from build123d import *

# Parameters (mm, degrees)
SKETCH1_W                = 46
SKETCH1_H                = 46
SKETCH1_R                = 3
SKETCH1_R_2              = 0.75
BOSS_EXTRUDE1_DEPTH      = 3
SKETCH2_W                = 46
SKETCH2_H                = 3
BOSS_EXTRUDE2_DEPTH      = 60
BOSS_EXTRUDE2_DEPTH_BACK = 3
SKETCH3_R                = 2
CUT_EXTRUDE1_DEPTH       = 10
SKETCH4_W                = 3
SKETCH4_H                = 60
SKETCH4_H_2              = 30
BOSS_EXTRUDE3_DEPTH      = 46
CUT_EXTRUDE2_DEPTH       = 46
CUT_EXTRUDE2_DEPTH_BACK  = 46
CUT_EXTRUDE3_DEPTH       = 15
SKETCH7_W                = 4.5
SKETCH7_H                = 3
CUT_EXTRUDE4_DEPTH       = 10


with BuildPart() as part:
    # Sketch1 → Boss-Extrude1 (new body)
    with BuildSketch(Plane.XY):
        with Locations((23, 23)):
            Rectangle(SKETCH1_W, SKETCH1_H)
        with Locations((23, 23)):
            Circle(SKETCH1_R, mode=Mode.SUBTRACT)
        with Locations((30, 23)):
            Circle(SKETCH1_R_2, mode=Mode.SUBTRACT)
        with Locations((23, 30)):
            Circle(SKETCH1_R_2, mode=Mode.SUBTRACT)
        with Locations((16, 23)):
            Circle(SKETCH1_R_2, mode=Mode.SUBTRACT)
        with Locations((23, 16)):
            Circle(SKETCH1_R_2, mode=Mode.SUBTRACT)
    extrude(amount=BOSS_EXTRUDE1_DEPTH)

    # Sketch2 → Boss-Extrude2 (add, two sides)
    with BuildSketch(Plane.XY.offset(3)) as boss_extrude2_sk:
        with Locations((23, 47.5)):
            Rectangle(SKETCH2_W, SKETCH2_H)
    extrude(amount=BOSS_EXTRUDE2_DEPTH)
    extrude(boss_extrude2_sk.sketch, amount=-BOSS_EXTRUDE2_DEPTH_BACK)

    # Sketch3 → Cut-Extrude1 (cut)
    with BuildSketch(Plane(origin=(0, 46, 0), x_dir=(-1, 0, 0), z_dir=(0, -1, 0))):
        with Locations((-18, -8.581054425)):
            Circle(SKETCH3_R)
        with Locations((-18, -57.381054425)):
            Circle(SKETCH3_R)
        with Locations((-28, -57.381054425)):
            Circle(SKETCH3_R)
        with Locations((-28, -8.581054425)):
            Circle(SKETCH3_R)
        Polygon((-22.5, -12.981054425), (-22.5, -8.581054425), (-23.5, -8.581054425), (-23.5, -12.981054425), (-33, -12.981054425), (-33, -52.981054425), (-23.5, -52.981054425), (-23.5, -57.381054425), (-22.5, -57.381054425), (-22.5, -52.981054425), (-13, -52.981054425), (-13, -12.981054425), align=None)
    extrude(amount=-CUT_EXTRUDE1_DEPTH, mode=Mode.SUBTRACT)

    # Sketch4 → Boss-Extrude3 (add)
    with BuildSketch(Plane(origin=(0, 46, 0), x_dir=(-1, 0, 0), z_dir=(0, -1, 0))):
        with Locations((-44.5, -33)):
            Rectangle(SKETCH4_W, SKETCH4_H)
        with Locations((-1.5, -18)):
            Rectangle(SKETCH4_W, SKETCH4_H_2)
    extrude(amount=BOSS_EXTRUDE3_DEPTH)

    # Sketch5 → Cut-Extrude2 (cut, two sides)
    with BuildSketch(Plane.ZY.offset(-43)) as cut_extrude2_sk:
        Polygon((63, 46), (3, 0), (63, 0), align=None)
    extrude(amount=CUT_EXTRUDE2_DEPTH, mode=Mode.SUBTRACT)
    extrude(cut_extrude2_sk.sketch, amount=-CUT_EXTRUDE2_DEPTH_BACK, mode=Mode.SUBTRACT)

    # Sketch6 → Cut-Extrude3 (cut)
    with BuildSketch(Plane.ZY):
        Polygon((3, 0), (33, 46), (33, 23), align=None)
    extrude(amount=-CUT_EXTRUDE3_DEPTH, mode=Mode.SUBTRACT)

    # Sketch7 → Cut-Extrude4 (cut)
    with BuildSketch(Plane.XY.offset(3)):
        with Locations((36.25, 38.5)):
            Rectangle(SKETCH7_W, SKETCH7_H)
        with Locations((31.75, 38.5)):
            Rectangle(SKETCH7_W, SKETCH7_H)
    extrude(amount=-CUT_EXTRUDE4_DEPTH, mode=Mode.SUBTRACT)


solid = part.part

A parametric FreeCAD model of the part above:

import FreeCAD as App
import Part
import Sketcher

V = App.Vector


def add_polygon(sketch, points):
    """Adds a closed chain of lines whose ends are joined by coincident constraints."""
    first, n = sketch.GeometryCount, len(points)
    for a, b in zip(points, points[1:] + points[:1]):
        sketch.addGeometry(Part.LineSegment(App.Vector(*a, 0), App.Vector(*b, 0)), False)
    for i in range(n):
        sketch.addConstraint(Sketcher.Constraint("Coincident", first + i, 2, first + (i + 1) % n, 1))

doc = App.newDocument("Part")
body = doc.addObject("PartDesign::Body", "Body")

# Sketch on XY plane
sketch1 = doc.addObject("Sketcher::SketchObject", "Sketch")
body.addObject(sketch1)
sketch1.AttachmentSupport = (doc.XY_Plane, [""])
sketch1.MapMode = "FlatFace"
add_polygon(sketch1, [(0, 46), (0, 0), (46, 0), (46, 46)])  # lines 0-3
sketch1.addGeometry(Part.Circle(V(23, 16, 0), V(0, 0, 1), 0.8), False)  # 4
sketch1.addGeometry(Part.Circle(V(16, 23, 0), V(0, 0, 1), 0.8), False)  # 5
sketch1.addGeometry(Part.Circle(V(23, 23, 0), V(0, 0, 1), 3), False)  # 6
sketch1.addGeometry(Part.Circle(V(30, 23, 0), V(0, 0, 1), 0.8), False)  # 7
sketch1.addGeometry(Part.Circle(V(23, 30, 0), V(0, 0, 1), 0.8), False)  # 8
sketch1.addConstraint(Sketcher.Constraint("Vertical", 0))
sketch1.addConstraint(Sketcher.Constraint("Horizontal", 1))
sketch1.addConstraint(Sketcher.Constraint("Vertical", 2))
sketch1.addConstraint(Sketcher.Constraint("Horizontal", 3))
sketch1.addConstraint(Sketcher.Constraint("Coincident", 0, 2, -1, 1))
sketch1.addConstraint(Sketcher.Constraint("Equal", 4, 5))
sketch1.addConstraint(Sketcher.Constraint("Equal", 5, 7))
sketch1.addConstraint(Sketcher.Constraint("Equal", 7, 8))
sketch1.addConstraint(Sketcher.Constraint("Horizontal", 5, 3, 6, 3))
sketch1.addConstraint(Sketcher.Constraint("Horizontal", 6, 3, 7, 3))
sketch1.addConstraint(Sketcher.Constraint("Vertical", 4, 3, 6, 3))
sketch1.addConstraint(Sketcher.Constraint("Vertical", 6, 3, 8, 3))
sketch1.addConstraint(Sketcher.Constraint("Equal", 3, 0))
sketch1.addConstraint(Sketcher.Constraint("Diameter", 6, 6.0))
sketch1.addConstraint(Sketcher.Constraint("Diameter", 4, 1.5))
sketch1.addConstraint(Sketcher.Constraint("DistanceX", 1, 1, 1, 2, 46.0))
sketch1.addConstraint(Sketcher.Constraint("DistanceX", -1, 1, 4, 3, 23.0))
sketch1.addConstraint(Sketcher.Constraint("DistanceY", -1, 1, 4, 3, 16.0))
sketch1.addConstraint(Sketcher.Constraint("DistanceX", -1, 1, 5, 3, 16.0))
sketch1.addConstraint(Sketcher.Constraint("DistanceY", -1, 1, 5, 3, 23.0))
sketch1.addConstraint(Sketcher.Constraint("DistanceX", -1, 1, 7, 3, 30.0))
sketch1.addConstraint(Sketcher.Constraint("DistanceY", -1, 1, 8, 3, 30.0))
pad1 = doc.addObject("PartDesign::Pad", "Pad")
body.addObject(pad1)
pad1.Profile = sketch1
pad1.Length = 3

# Sketch on XY plane
sketch2 = doc.addObject("Sketcher::SketchObject", "Sketch001")
body.addObject(sketch2)
sketch2.AttachmentSupport = (doc.XY_Plane, [""])
sketch2.MapMode = "FlatFace"
sketch2.AttachmentOffset = App.Placement(V(0, 0, 3), App.Rotation())
add_polygon(sketch2, [(0, 49), (0, 46), (46, 46), (46, 49)])  # lines 0-3
sketch2.addConstraint(Sketcher.Constraint("Vertical", 0))
sketch2.addConstraint(Sketcher.Constraint("Horizontal", 1))
sketch2.addConstraint(Sketcher.Constraint("Vertical", 2))
sketch2.addConstraint(Sketcher.Constraint("Horizontal", 3))
sketch2.addConstraint(Sketcher.Constraint("PointOnObject", 0, 2, -2))
sketch2.addConstraint(Sketcher.Constraint("DistanceX", 1, 1, 1, 2, 46.0))
sketch2.addConstraint(Sketcher.Constraint("DistanceY", 0, 2, 0, 1, 3.0))
sketch2.addConstraint(Sketcher.Constraint("DistanceY", -1, 1, 0, 2, 46.0))
pad2 = doc.addObject("PartDesign::Pad", "Pad001")
body.addObject(pad2)
pad2.Profile = sketch2
pad2.Type = "TwoLengths"
pad2.Length = 60
pad2.Length2 = 3

# Sketch on XZ plane
sketch3 = doc.addObject("Sketcher::SketchObject", "Sketch002")
body.addObject(sketch3)
sketch3.AttachmentSupport = (doc.XZ_Plane, [""])
sketch3.MapMode = "FlatFace"
sketch3.AttachmentOffset = App.Placement(V(0, 0, -46), App.Rotation())
sketch3.addGeometry(Part.Circle(V(18, 8.6, 0), V(0, 0, 1), 2), False)  # 0
sketch3.addGeometry(Part.Circle(V(18, 57.4, 0), V(0, 0, 1), 2), False)  # 1
sketch3.addGeometry(Part.Circle(V(28, 57.4, 0), V(0, 0, 1), 2), False)  # 2
sketch3.addGeometry(Part.Circle(V(28, 8.6, 0), V(0, 0, 1), 2), False)  # 3
add_polygon(sketch3, [(22.5, 13), (22.5, 8.6), (23.5, 8.6), (23.5, 13), (33, 13), (33, 53), (23.5, 53), (23.5, 57.4), (22.5, 57.4), (22.5, 53), (13, 53), (13, 13)])  # lines 4-15
sketch3.addConstraint(Sketcher.Constraint("Vertical", 4))
sketch3.addConstraint(Sketcher.Constraint("Horizontal", 5))
sketch3.addConstraint(Sketcher.Constraint("Vertical", 6))
sketch3.addConstraint(Sketcher.Constraint("Horizontal", 7))
sketch3.addConstraint(Sketcher.Constraint("Vertical", 8))
sketch3.addConstraint(Sketcher.Constraint("Horizontal", 9))
sketch3.addConstraint(Sketcher.Constraint("Vertical", 10))
sketch3.addConstraint(Sketcher.Constraint("Horizontal", 11))
sketch3.addConstraint(Sketcher.Constraint("Vertical", 12))
sketch3.addConstraint(Sketcher.Constraint("Horizontal", 13))
sketch3.addConstraint(Sketcher.Constraint("Vertical", 14))
sketch3.addConstraint(Sketcher.Constraint("Horizontal", 15))
sketch3.addConstraint(Sketcher.Constraint("Equal", 0, 1))
sketch3.addConstraint(Sketcher.Constraint("Equal", 1, 2))
sketch3.addConstraint(Sketcher.Constraint("Equal", 2, 3))
sketch3.addConstraint(Sketcher.Constraint("Horizontal", 1, 3, 2, 3))
sketch3.addConstraint(Sketcher.Constraint("Horizontal", 0, 3, 3, 3))
sketch3.addConstraint(Sketcher.Constraint("Horizontal", 3, 3, 4, 2))
sketch3.addConstraint(Sketcher.Constraint("Horizontal", 2, 3, 10, 2))
sketch3.addConstraint(Sketcher.Constraint("Horizontal", 9, 2, 12, 2))
sketch3.addConstraint(Sketcher.Constraint("Horizontal", 7, 2, 14, 2))
sketch3.addConstraint(Sketcher.Constraint("Vertical", 0, 3, 1, 3))
sketch3.addConstraint(Sketcher.Constraint("Vertical", 2, 3, 3, 3))
sketch3.addConstraint(Sketcher.Constraint("Vertical", 6, 2, 9, 2))
sketch3.addConstraint(Sketcher.Constraint("Vertical", 4, 2, 11, 2))
sketch3.addConstraint(Sketcher.Constraint("Equal", 9, 13))
sketch3.addConstraint(Sketcher.Constraint("Equal", 6, 10))
sketch3.addConstraint(Sketcher.Constraint("Diameter", 0, 4.0))
sketch3.addConstraint(Sketcher.Constraint("DistanceX", 5, 1, 5, 2, 1.0))
sketch3.addConstraint(Sketcher.Constraint("DistanceY", 8, 1, 8, 2, 40.0))
sketch3.addConstraint(Sketcher.Constraint("DistanceX", 7, 1, 7, 2, 9.5))
sketch3.addConstraint(Sketcher.Constraint("DistanceY", 4, 2, 4, 1, 4.4))
sketch3.addConstraint(Sketcher.Constraint("DistanceX", -1, 1, 0, 3, 18.0))
sketch3.addConstraint(Sketcher.Constraint("DistanceX", -1, 1, 2, 3, 28.0))
sketch3.addConstraint(Sketcher.Constraint("DistanceX", -1, 1, 7, 2, 33.0))
sketch3.addConstraint(Sketcher.Constraint("DistanceY", -1, 1, 0, 3, 8.581054))
pocket1 = doc.addObject("PartDesign::Pocket", "Pocket")
body.addObject(pocket1)
pocket1.Profile = sketch3
pocket1.Length = 10

# Sketch on XZ plane
sketch4 = doc.addObject("Sketcher::SketchObject", "Sketch003")
body.addObject(sketch4)
sketch4.AttachmentSupport = (doc.XZ_Plane, [""])
sketch4.MapMode = "FlatFace"
sketch4.AttachmentOffset = App.Placement(V(0, 0, -46), App.Rotation())
add_polygon(sketch4, [(46, 3), (46, 63), (43, 63), (43, 3)])  # lines 0-3
add_polygon(sketch4, [(3, 3), (3, 33), (0, 33), (0, 3)])  # lines 4-7
sketch4.addConstraint(Sketcher.Constraint("Vertical", 0))
sketch4.addConstraint(Sketcher.Constraint("Horizontal", 1))
sketch4.addConstraint(Sketcher.Constraint("Vertical", 2))
sketch4.addConstraint(Sketcher.Constraint("Horizontal", 3))
sketch4.addConstraint(Sketcher.Constraint("Vertical", 4))
sketch4.addConstraint(Sketcher.Constraint("Horizontal", 5))
sketch4.addConstraint(Sketcher.Constraint("Vertical", 6))
sketch4.addConstraint(Sketcher.Constraint("Horizontal", 7))
sketch4.addConstraint(Sketcher.Constraint("PointOnObject", 5, 2, -2))
sketch4.addConstraint(Sketcher.Constraint("Horizontal", 3, 2, 6, 2))
sketch4.addConstraint(Sketcher.Constraint("Equal", 3, 5))
sketch4.addConstraint(Sketcher.Constraint("DistanceX", 1, 2, 1, 1, 3.0))
sketch4.addConstraint(Sketcher.Constraint("DistanceY", 0, 1, 0, 2, 60.0))
sketch4.addConstraint(Sketcher.Constraint("DistanceY", 4, 1, 4, 2, 30.0))
sketch4.addConstraint(Sketcher.Constraint("DistanceX", -1, 1, 0, 2, 46.0))
sketch4.addConstraint(Sketcher.Constraint("DistanceY", -1, 1, 0, 2, 63.0))
pad3 = doc.addObject("PartDesign::Pad", "Pad002")
body.addObject(pad3)
pad3.Profile = sketch4
pad3.Length = 46

# Sketch on YZ plane
sketch5 = doc.addObject("Sketcher::SketchObject", "Sketch004")
body.addObject(sketch5)
sketch5.AttachmentSupport = (doc.YZ_Plane, [""])
sketch5.MapMode = "FlatFace"
sketch5.AttachmentOffset = App.Placement(V(0, 0, 43), App.Rotation())
add_polygon(sketch5, [(46, 63), (0, 3), (0, 63)])  # lines 0-2
sketch5.addConstraint(Sketcher.Constraint("Vertical", 1))
sketch5.addConstraint(Sketcher.Constraint("Horizontal", 2))
sketch5.addConstraint(Sketcher.Constraint("PointOnObject", 0, 2, -2))
sketch5.addConstraint(Sketcher.Constraint("DistanceX", 2, 1, 2, 2, 46.0))
sketch5.addConstraint(Sketcher.Constraint("DistanceY", 1, 1, 1, 2, 60.0))
sketch5.addConstraint(Sketcher.Constraint("DistanceY", -1, 1, 0, 2, 3.0))
pocket2 = doc.addObject("PartDesign::Pocket", "Pocket001")
body.addObject(pocket2)
pocket2.Profile = sketch5
pocket2.Type = "ThroughAll"
pocket2.Midplane = True

# Sketch on YZ plane
sketch6 = doc.addObject("Sketcher::SketchObject", "Sketch005")
body.addObject(sketch6)
sketch6.AttachmentSupport = (doc.YZ_Plane, [""])
sketch6.MapMode = "FlatFace"
add_polygon(sketch6, [(46, 33), (0, 3), (23, 33)])  # lines 0-2
sketch6.addConstraint(Sketcher.Constraint("Horizontal", 2))
sketch6.addConstraint(Sketcher.Constraint("PointOnObject", 0, 2, -2))
sketch6.addConstraint(Sketcher.Constraint("DistanceX", 2, 1, 2, 2, 23.0))
sketch6.addConstraint(Sketcher.Constraint("DistanceY", -1, 1, 0, 2, 3.0))
sketch6.addConstraint(Sketcher.Constraint("DistanceX", -1, 1, 1, 2, 23.0))
sketch6.addConstraint(Sketcher.Constraint("DistanceY", -1, 1, 1, 2, 33.0))
pocket3 = doc.addObject("PartDesign::Pocket", "Pocket002")
body.addObject(pocket3)
pocket3.Profile = sketch6
pocket3.Length = 15
pocket3.Reversed = True

# Sketch on XY plane
sketch7 = doc.addObject("Sketcher::SketchObject", "Sketch006")
body.addObject(sketch7)
sketch7.AttachmentSupport = (doc.XY_Plane, [""])
sketch7.MapMode = "FlatFace"
sketch7.AttachmentOffset = App.Placement(V(0, 0, 3), App.Rotation())
add_polygon(sketch7, [(38.5, 37), (38.5, 40), (29.5, 40), (29.5, 37)])  # lines 0-3
sketch7.addConstraint(Sketcher.Constraint("Vertical", 0))
sketch7.addConstraint(Sketcher.Constraint("Horizontal", 1))
sketch7.addConstraint(Sketcher.Constraint("Vertical", 2))
sketch7.addConstraint(Sketcher.Constraint("Horizontal", 3))
sketch7.addConstraint(Sketcher.Constraint("DistanceX", 1, 2, 1, 1, 9.0))
sketch7.addConstraint(Sketcher.Constraint("DistanceY", 0, 1, 0, 2, 3.0))
sketch7.addConstraint(Sketcher.Constraint("DistanceY", -1, 1, 0, 2, 40.0))
sketch7.addConstraint(Sketcher.Constraint("DistanceX", -1, 1, 0, 2, 38.5))
pocket4 = doc.addObject("PartDesign::Pocket", "Pocket003")
body.addObject(pocket4)
pocket4.Profile = sketch7
pocket4.Length = 10

doc.recompute()
